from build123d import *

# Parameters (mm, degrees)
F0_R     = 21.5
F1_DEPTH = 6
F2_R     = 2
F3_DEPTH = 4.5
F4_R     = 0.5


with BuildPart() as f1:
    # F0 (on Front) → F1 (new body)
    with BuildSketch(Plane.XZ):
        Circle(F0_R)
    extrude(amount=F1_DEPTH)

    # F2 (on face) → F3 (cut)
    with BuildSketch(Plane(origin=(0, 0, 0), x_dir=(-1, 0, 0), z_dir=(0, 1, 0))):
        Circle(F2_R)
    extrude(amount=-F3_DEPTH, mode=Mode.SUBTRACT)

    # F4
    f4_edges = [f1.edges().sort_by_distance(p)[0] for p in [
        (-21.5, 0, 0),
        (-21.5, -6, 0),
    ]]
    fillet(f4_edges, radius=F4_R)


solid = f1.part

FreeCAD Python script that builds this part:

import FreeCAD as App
import Part
import Sketcher

V = App.Vector


def edges_at(feature, points):
    """Names of the edges that pass closest to the given points."""
    edges = feature.Shape.Edges
    near = lambda p: min(range(len(edges)), key=lambda i: edges[i].distToShape(Part.Vertex(*p))[0])
    return sorted({f"Edge{near(p) + 1}" for p in points})

doc = App.newDocument("Part")
body = doc.addObject("PartDesign::Body", "Body")

sketch1 = body.newObject("Sketcher::SketchObject", "Sketch")
sketch1.AttachmentSupport = (doc.getObject("XZ_Plane"), [""])
sketch1.MapMode = "FlatFace"
sketch1.addGeometry(Part.Circle(V(0, 0, 0), V(0, 0, 1), 22), False)
sketch1.addConstraint(Sketcher.Constraint("Coincident", 0, 3, -1, 1))
sketch1.addConstraint(Sketcher.Constraint("Diameter", 0, 43.0))
pad1 = body.newObject("PartDesign::Pad", "Pad")
pad1.Profile = sketch1
pad1.Length = 6

sketch2 = body.newObject("Sketcher::SketchObject", "Sketch001")
sketch2.AttachmentSupport = (doc.getObject("XZ_Plane"), [""])
sketch2.MapMode = "FlatFace"
sketch2.addGeometry(Part.Circle(V(0, 0, 0), V(0, 0, 1), 2), False)
sketch2.addConstraint(Sketcher.Constraint("Coincident", 0, 3, -1, 1))
sketch2.addConstraint(Sketcher.Constraint("Diameter", 0, 4.0))
pocket1 = body.newObject("PartDesign::Pocket", "Pocket")
pocket1.Profile = sketch2
pocket1.Length = 4.5
pocket1.Reversed = True
doc.recompute()

fillet = body.newObject("PartDesign::Fillet", "Fillet")
fillet.Base = (pocket1, edges_at(pocket1, [(-21.5, 0, 0), (-21.5, -6, 0)]))
fillet.Radius = 0.5

doc.recompute()
